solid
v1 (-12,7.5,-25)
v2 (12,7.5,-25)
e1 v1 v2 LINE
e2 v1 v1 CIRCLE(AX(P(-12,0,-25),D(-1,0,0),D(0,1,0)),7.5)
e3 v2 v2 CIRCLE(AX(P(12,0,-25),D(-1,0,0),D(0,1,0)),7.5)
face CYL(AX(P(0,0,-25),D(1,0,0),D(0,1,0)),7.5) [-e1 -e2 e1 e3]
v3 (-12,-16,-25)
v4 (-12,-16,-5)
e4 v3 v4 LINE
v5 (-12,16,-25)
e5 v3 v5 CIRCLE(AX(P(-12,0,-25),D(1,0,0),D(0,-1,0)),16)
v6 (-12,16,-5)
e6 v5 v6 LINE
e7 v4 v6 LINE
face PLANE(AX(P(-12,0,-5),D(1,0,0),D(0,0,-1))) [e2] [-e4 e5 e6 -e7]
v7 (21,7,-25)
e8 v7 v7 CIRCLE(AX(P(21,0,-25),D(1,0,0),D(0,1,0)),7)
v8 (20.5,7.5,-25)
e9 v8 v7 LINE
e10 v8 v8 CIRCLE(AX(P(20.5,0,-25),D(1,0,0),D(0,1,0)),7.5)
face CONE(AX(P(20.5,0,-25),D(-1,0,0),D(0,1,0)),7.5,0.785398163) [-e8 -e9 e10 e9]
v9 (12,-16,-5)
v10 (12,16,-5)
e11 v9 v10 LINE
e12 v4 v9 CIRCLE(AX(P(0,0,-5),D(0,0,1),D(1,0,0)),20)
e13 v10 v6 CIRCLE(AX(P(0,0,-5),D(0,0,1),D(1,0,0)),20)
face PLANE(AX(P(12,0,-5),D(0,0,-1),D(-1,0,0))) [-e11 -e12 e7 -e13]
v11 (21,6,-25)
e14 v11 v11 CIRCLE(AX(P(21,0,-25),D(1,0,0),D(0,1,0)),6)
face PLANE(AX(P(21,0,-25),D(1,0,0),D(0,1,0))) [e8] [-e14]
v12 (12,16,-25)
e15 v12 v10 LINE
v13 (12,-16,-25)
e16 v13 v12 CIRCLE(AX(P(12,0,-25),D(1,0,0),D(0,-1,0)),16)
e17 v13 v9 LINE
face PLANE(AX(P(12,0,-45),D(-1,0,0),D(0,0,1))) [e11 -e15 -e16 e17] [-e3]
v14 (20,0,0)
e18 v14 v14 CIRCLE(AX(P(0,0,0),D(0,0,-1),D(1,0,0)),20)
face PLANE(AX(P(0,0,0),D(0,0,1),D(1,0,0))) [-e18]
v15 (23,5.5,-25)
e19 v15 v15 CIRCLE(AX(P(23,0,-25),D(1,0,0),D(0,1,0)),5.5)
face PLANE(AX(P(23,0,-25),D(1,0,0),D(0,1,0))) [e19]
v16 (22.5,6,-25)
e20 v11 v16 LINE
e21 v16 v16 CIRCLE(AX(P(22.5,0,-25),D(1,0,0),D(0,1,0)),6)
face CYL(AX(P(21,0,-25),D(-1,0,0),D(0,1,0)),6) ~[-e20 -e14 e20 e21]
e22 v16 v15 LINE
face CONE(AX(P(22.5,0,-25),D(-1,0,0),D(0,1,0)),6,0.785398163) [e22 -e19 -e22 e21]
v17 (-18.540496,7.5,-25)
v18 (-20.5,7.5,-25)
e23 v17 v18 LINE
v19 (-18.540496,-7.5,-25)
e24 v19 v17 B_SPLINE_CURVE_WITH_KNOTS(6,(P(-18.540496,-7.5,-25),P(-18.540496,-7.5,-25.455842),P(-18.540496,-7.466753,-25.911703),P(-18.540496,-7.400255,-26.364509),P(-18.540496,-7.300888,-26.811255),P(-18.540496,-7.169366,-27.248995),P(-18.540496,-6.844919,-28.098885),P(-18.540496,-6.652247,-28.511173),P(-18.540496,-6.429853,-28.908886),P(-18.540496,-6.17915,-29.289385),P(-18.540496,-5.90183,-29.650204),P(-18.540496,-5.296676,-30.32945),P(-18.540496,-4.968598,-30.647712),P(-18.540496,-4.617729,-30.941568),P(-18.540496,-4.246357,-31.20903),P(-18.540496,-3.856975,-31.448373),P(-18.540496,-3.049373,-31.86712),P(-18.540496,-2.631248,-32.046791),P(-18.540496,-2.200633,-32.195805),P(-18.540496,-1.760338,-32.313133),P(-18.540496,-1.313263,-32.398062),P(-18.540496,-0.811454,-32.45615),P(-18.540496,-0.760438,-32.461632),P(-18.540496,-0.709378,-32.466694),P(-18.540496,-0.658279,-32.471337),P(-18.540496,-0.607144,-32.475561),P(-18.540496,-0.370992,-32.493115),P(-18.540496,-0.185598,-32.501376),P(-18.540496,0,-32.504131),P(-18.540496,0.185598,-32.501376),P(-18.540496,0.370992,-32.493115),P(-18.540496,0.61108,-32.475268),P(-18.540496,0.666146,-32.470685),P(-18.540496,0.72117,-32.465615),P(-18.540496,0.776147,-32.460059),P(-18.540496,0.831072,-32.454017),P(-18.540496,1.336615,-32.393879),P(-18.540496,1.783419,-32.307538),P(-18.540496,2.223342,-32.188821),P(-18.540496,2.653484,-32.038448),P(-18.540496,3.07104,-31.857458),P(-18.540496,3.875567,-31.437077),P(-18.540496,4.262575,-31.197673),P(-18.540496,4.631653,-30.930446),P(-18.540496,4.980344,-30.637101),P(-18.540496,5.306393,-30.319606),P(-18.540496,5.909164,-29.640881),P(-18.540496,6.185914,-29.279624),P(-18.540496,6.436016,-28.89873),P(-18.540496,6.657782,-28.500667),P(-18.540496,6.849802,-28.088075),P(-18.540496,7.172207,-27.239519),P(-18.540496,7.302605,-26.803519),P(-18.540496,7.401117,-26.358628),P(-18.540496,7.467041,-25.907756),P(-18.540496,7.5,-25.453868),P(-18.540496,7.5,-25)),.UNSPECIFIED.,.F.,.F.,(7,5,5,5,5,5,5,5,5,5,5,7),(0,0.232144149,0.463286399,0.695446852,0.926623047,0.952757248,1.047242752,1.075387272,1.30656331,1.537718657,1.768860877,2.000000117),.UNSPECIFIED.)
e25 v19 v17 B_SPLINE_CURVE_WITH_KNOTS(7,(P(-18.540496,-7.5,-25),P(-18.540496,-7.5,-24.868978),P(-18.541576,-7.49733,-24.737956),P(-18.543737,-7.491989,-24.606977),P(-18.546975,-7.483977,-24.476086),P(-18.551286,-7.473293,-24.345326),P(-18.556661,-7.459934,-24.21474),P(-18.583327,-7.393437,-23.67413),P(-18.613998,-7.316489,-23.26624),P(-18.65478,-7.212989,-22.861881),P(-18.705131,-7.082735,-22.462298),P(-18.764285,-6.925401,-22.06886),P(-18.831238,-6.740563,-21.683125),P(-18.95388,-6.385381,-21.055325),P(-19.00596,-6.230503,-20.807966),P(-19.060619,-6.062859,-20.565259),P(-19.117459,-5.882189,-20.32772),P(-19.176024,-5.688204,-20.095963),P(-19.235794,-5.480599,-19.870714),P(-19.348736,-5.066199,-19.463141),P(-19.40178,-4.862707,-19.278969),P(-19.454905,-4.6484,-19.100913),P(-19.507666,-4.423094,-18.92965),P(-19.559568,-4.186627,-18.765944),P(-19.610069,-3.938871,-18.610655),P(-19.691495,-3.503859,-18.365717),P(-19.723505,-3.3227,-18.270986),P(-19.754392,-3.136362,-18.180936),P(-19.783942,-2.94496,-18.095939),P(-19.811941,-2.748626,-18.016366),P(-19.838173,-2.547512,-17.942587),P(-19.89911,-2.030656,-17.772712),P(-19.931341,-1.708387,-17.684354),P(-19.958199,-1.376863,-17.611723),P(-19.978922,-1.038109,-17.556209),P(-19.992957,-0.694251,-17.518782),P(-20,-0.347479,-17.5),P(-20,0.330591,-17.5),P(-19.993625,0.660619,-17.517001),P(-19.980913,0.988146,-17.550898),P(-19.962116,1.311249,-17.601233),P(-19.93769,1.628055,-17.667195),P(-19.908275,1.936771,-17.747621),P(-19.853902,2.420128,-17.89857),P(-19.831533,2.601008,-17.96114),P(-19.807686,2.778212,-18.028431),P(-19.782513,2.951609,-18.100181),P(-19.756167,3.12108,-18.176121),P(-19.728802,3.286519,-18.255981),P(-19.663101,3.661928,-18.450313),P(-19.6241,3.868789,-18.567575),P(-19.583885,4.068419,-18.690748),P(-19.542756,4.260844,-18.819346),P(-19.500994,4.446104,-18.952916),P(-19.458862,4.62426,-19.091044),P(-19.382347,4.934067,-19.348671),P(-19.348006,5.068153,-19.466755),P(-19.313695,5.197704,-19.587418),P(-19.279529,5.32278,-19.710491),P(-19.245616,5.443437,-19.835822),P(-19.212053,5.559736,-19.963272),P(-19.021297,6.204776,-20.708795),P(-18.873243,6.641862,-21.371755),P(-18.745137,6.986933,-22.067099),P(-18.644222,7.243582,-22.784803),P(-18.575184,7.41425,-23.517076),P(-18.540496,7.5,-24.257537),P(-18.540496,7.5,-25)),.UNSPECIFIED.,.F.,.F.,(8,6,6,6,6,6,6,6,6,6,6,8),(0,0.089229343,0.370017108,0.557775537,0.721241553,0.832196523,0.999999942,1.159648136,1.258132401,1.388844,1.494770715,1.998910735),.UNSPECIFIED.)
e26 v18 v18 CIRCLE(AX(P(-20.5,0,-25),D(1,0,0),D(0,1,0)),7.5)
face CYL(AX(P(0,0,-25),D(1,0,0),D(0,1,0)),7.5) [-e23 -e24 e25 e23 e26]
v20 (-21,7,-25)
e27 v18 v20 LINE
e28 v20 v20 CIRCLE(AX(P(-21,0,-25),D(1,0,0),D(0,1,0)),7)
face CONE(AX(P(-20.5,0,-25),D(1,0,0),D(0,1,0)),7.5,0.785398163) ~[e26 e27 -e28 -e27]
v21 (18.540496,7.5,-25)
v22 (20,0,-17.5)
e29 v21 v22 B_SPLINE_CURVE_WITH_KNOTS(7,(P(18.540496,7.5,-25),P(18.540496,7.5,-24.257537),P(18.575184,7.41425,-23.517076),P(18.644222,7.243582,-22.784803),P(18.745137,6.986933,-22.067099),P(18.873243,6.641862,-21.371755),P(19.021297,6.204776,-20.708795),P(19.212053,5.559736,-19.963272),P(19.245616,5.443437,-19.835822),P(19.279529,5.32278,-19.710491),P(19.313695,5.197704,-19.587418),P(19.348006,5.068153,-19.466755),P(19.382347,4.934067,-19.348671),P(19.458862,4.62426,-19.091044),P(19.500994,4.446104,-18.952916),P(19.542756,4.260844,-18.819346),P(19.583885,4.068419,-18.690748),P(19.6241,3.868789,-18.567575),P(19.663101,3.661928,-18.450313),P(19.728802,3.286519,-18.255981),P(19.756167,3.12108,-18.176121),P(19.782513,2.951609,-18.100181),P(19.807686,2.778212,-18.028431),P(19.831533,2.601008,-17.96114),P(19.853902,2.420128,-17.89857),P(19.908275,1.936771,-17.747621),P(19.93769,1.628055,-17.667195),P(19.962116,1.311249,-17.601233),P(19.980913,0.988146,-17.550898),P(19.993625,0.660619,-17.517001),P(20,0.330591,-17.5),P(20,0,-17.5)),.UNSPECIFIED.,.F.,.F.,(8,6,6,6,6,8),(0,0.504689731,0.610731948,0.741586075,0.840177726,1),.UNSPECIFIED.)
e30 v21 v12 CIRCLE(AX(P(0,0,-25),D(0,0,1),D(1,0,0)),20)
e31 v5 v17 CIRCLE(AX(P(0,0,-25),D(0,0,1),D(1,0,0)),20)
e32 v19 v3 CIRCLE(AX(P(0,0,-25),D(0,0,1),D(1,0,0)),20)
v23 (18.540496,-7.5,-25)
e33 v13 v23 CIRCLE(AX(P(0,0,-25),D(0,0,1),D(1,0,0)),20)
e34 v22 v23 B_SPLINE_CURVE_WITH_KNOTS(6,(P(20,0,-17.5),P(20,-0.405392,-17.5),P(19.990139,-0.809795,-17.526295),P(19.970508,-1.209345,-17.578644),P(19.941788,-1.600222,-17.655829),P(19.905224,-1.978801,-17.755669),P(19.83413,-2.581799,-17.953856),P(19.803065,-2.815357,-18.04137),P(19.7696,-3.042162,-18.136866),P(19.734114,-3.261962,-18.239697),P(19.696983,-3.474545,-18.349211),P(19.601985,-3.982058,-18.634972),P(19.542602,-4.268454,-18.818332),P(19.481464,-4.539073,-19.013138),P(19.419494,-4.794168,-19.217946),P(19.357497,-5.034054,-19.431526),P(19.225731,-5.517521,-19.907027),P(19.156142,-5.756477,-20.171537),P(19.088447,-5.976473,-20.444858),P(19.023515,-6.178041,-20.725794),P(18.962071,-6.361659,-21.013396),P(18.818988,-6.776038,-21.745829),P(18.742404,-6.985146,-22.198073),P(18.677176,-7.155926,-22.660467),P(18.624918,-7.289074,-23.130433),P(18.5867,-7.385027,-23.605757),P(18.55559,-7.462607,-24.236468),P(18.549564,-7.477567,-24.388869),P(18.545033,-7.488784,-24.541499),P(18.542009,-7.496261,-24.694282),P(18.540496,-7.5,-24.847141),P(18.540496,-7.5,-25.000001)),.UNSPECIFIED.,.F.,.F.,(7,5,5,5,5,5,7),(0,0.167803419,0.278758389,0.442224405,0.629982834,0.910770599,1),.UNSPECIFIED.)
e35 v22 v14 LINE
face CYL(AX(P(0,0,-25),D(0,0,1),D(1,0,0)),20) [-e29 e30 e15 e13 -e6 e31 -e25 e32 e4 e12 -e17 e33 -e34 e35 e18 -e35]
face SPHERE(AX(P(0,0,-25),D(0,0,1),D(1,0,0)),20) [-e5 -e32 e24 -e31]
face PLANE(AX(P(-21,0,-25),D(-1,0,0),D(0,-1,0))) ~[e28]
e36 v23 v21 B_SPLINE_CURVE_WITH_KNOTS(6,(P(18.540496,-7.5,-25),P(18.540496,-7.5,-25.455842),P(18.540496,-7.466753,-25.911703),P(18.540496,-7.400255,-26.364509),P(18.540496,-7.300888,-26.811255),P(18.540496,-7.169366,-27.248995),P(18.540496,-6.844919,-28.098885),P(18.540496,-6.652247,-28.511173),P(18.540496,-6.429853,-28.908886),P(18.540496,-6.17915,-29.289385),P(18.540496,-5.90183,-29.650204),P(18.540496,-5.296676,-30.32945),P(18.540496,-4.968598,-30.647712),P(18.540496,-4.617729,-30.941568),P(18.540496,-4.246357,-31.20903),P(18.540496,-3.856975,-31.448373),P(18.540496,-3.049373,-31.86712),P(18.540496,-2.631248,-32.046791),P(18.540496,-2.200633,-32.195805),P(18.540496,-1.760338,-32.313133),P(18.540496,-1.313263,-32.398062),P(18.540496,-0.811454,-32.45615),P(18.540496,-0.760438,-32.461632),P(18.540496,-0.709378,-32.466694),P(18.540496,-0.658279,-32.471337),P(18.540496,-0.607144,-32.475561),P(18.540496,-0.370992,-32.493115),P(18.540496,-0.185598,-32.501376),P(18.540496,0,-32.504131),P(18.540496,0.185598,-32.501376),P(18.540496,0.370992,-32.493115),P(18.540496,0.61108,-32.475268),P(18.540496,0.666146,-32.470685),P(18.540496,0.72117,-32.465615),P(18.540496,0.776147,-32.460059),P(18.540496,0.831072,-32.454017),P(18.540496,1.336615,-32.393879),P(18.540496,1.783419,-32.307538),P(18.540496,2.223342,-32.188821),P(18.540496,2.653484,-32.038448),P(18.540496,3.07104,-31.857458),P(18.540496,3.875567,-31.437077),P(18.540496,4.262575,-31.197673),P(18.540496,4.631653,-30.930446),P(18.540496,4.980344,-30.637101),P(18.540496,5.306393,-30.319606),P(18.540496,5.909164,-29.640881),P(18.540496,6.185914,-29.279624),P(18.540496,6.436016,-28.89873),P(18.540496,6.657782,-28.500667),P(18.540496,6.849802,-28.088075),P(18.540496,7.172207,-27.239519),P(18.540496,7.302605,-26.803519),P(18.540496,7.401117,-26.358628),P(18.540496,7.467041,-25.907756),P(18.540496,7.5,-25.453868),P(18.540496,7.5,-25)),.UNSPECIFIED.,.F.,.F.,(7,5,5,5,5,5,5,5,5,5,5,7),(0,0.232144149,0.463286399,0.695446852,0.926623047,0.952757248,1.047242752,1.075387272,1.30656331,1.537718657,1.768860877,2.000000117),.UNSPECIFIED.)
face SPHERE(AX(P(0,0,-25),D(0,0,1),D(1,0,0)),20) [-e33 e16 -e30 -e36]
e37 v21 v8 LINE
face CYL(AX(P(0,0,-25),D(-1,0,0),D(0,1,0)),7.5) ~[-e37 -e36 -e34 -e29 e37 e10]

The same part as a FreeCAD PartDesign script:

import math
import FreeCAD as App
import Part
import Sketcher

V = App.Vector


def edges_at(feature, points):
    """Names of the edges that pass closest to the given points."""
    edges = feature.Shape.Edges
    near = lambda p: min(range(len(edges)), key=lambda i: edges[i].distToShape(Part.Vertex(*p))[0])
    return sorted({f"Edge{near(p) + 1}" for p in points})

doc = App.newDocument("Part")
body = doc.addObject("PartDesign::Body", "Body")

sketch1 = doc.addObject("Sketcher::SketchObject", "Sketch")
body.addObject(sketch1)
sketch1.AttachmentSupport = (doc.XZ_Plane, [""])
sketch1.MapMode = "FlatFace"
sketch1.addGeometry([
    Part.LineSegment(V(20, 0, 0), V(0, 0, 0)),
    Part.LineSegment(V(0, 0, 0), V(0, -45, 0)),
    Part.ArcOfCircle(Part.Circle(V(0, -25, 0), V(0, 0, 1), 20), math.radians(-90), math.radians(0)),
    Part.LineSegment(V(20, -25, 0), V(20, 0, 0)),
], False)
sketch1.addConstraint([
    Sketcher.Constraint("Coincident", 0, 2, 1, 1),
    Sketcher.Constraint("Coincident", 1, 2, 2, 1),
    Sketcher.Constraint("Tangent", 2, 2, 3, 1),
    Sketcher.Constraint("Coincident", 3, 2, 0, 1),
    Sketcher.Constraint("Horizontal", 0),
    Sketcher.Constraint("Vertical", 1),
    Sketcher.Constraint("Vertical", 3),
    Sketcher.Constraint("Coincident", 0, 2, -1, 1),
    Sketcher.Constraint("PointOnObject", 2, 3, -2),
    Sketcher.Constraint("Radius", 2, 20.0),
    Sketcher.Constraint("DistanceY", 1, 2, 1, 1, 45.0),
])
revolution = doc.addObject("PartDesign::Revolution", "Revolution")
body.addObject(revolution)
revolution.Profile = sketch1
revolution.ReferenceAxis = (sketch1, ["V_Axis"])
revolution.Angle = 360

sketch2 = doc.addObject("Sketcher::SketchObject", "Sketch001")
body.addObject(sketch2)
sketch2.AttachmentSupport = (doc.XZ_Plane, [""])
sketch2.MapMode = "FlatFace"
sketch2.addGeometry([
    Part.LineSegment(V(12, -45, 0), V(12, -5, 0)),
    Part.LineSegment(V(12, -5, 0), V(-12, -5, 0)),
    Part.LineSegment(V(-12, -5, 0), V(-12, -45, 0)),
    Part.LineSegment(V(-12, -45, 0), V(12, -45, 0)),
], False)
sketch2.addConstraint([
    Sketcher.Constraint("Coincident", 0, 2, 1, 1),
    Sketcher.Constraint("Coincident", 1, 2, 2, 1),
    Sketcher.Constraint("Coincident", 2, 2, 3, 1),
    Sketcher.Constraint("Coincident", 3, 2, 0, 1),
    Sketcher.Constraint("Vertical", 0),
    Sketcher.Constraint("Horizontal", 1),
    Sketcher.Constraint("Vertical", 2),
    Sketcher.Constraint("Horizontal", 3),
    Sketcher.Constraint("DistanceX", 1, 2, 1, 1, 24.0),
    Sketcher.Constraint("DistanceY", 0, 1, 0, 2, 40.0),
    Sketcher.Constraint("DistanceX", -1, 1, 0, 2, 12.0),
    Sketcher.Constraint("DistanceY", 0, 2, -1, 1, 5.0),
])
pocket1 = doc.addObject("PartDesign::Pocket", "Pocket")
body.addObject(pocket1)
pocket1.Profile = sketch2
pocket1.Type = "ThroughAll"
pocket1.Midplane = True

sketch3 = doc.addObject("Sketcher::SketchObject", "Sketch002")
body.addObject(sketch3)
sketch3.AttachmentSupport = (doc.YZ_Plane, [""])
sketch3.MapMode = "FlatFace"
sketch3.addGeometry(Part.Circle(V(0, -25, 0), V(0, 0, 1), 8), False)
sketch3.addConstraint([
    Sketcher.Constraint("PointOnObject", 0, 3, -2),
    Sketcher.Constraint("Diameter", 0, 15.0),
    Sketcher.Constraint("DistanceY", 0, 3, -1, 1, 25.0),
])
pad1 = doc.addObject("PartDesign::Pad", "Pad")
body.addObject(pad1)
pad1.Profile = sketch3
pad1.Length = 21
body2 = doc.addObject("PartDesign::Body", "Body001")
doc.recompute()

body2.BaseFeature = body
doc.recompute()

mirroring = doc.addObject("Part::Mirroring", "Mirroring")
mirroring.Source = body
mirroring.Base = V(0, 0, 0)
mirroring.Normal = V(1, 0, 0)
body3 = doc.addObject("PartDesign::Body", "Body002")
body3.BaseFeature = mirroring
boolean = doc.addObject("PartDesign::Boolean", "Boolean")
body2.addObject(boolean)
boolean.Type = "Fuse"
boolean.addObjects([body3])
doc.recompute()

sketch4 = doc.addObject("Sketcher::SketchObject", "Sketch003")
body2.addObject(sketch4)
sketch4.AttachmentSupport = (doc.getObject("YZ_Plane001"), [""])
sketch4.MapMode = "FlatFace"
sketch4.AttachmentOffset = App.Placement(V(0, 0, 21), App.Rotation())
sketch4.addGeometry(Part.Circle(V(0, -25, 0), V(0, 0, 1), 6), False)
sketch4.addConstraint([
    Sketcher.Constraint("PointOnObject", 0, 3, -2),
    Sketcher.Constraint("Diameter", 0, 12.0),
    Sketcher.Constraint("DistanceY", 0, 3, -1, 1, 25.0),
])
pad2 = doc.addObject("PartDesign::Pad", "Pad001")
body2.addObject(pad2)
pad2.Profile = sketch4
pad2.Type = "TwoLengths"
pad2.Length = 2
pad2.Length2 = 9
doc.recompute()

chamfer = doc.addObject("PartDesign::Chamfer", "Chamfer")
body2.addObject(chamfer)
chamfer.Base = (pad2, edges_at(pad2, [(23, -6, -25), (-21, -7.5, -25), (21, -7.5, -25)]))
chamfer.Size = 0.5
mirroring.Visibility = False

doc.recompute()
